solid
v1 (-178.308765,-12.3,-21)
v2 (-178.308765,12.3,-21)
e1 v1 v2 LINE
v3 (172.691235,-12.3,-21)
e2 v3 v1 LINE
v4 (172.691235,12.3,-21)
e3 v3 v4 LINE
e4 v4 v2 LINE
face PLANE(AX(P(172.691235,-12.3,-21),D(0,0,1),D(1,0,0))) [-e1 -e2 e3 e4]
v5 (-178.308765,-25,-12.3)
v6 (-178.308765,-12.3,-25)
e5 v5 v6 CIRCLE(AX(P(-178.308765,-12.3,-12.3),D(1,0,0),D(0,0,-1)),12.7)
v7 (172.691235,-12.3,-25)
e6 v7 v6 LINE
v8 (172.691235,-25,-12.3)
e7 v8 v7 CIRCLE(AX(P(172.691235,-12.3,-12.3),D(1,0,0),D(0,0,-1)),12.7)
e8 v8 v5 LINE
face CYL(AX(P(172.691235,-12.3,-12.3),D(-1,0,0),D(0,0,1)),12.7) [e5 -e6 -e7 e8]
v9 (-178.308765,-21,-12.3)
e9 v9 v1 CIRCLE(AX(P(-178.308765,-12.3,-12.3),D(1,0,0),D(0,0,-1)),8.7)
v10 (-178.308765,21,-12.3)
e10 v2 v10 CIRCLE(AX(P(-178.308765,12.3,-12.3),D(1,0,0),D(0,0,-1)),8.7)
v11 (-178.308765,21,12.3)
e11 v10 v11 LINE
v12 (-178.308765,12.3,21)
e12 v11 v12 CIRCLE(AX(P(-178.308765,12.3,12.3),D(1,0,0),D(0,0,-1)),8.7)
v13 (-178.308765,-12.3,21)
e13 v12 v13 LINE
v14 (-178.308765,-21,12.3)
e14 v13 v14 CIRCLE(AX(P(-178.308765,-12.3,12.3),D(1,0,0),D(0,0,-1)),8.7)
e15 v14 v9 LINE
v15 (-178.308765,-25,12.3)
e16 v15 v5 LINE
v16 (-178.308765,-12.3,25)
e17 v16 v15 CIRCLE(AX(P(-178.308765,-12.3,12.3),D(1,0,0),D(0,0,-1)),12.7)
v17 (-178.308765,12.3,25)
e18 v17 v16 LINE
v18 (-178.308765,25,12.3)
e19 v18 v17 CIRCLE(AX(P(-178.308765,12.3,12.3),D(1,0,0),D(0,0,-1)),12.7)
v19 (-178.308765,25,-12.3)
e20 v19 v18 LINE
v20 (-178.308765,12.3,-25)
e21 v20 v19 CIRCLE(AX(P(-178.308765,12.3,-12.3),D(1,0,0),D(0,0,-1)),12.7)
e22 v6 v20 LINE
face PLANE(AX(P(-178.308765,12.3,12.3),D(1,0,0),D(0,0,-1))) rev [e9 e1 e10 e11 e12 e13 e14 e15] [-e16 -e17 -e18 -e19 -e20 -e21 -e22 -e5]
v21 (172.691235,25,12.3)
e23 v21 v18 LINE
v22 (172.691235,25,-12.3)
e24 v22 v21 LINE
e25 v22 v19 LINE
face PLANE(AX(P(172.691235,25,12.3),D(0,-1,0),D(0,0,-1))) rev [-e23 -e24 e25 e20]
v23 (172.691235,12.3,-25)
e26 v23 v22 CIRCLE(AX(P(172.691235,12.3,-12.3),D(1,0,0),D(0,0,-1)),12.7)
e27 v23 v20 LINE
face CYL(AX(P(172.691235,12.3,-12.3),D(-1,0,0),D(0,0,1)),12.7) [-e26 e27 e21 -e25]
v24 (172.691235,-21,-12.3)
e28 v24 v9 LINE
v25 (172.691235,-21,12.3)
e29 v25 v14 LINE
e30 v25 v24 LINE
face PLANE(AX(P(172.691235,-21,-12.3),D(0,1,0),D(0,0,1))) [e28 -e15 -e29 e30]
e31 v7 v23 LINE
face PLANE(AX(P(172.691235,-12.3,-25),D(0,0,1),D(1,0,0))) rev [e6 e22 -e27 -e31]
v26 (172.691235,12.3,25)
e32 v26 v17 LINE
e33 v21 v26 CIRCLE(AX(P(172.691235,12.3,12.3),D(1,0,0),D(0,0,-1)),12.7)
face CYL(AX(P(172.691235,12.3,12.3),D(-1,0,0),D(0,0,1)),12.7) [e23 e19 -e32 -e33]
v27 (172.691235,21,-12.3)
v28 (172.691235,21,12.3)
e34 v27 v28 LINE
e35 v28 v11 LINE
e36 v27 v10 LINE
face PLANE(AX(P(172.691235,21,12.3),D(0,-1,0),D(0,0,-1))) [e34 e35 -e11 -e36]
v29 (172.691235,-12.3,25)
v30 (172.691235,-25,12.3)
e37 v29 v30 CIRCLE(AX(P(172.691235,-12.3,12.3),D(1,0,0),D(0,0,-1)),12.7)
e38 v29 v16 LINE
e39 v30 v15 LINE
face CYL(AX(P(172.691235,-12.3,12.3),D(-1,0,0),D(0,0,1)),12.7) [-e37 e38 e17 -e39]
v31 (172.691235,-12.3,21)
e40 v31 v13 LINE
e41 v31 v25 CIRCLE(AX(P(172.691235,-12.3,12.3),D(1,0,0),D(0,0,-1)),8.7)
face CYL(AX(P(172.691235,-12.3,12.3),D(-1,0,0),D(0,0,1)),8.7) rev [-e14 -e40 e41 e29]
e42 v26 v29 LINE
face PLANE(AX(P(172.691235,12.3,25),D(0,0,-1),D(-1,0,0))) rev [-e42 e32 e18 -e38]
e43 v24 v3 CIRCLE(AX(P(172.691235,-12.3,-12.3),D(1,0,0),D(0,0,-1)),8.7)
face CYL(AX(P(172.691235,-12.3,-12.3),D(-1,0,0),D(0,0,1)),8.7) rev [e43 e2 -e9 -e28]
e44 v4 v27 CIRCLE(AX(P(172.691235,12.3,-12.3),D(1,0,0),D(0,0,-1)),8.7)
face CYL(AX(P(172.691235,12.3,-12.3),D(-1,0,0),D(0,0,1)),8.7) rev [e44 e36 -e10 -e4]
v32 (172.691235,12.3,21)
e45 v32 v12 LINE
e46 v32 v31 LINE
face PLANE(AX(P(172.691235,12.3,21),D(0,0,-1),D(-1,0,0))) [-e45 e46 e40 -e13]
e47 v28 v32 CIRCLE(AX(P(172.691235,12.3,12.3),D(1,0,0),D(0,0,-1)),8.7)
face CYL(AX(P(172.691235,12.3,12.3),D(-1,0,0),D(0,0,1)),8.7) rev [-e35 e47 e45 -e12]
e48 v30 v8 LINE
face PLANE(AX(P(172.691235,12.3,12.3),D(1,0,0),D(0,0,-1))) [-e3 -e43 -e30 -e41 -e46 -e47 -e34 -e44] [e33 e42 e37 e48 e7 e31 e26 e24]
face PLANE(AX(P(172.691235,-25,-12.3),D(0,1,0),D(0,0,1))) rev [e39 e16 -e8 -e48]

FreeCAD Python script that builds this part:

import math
import FreeCAD as App
import Part
import Sketcher

doc = App.newDocument("Part")
body = doc.addObject("PartDesign::Body", "Body")

# Sketch on YZ plane
sketch1 = body.newObject("Sketcher::SketchObject", "Sketch")
sketch1.AttachmentSupport = (doc.getObject("YZ_Plane"), [""])
sketch1.MapMode = "FlatFace"
sketch1.AttachmentOffset = App.Placement(App.Vector(0, 0, -178.308765), App.Rotation())
sketch1.addGeometry([
    Part.LineSegment(App.Vector(-12, -25, 0), App.Vector(12, -25, 0)),  # 0
    Part.ArcOfCircle(Part.Circle(App.Vector(12, -12, 0), App.Vector(0, 0, 1), 13), math.radians(-90), math.radians(0)),  # 1
    Part.LineSegment(App.Vector(25, -12, 0), App.Vector(25, 12, 0)),  # 2
    Part.ArcOfCircle(Part.Circle(App.Vector(12, 12, 0), App.Vector(0, 0, 1), 13), math.radians(0), math.radians(90)),  # 3
    Part.LineSegment(App.Vector(12, 25, 0), App.Vector(-12, 25, 0)),  # 4
    Part.ArcOfCircle(Part.Circle(App.Vector(-12, 12, 0), App.Vector(0, 0, 1), 13), math.radians(90), math.radians(180)),  # 5
    Part.LineSegment(App.Vector(-25, 12, 0), App.Vector(-25, -12, 0)),  # 6
    Part.ArcOfCircle(Part.Circle(App.Vector(-12, -12, 0), App.Vector(0, 0, 1), 13), math.radians(180), math.radians(270)),  # 7
    Part.LineSegment(App.Vector(12, -21, 0), App.Vector(-12, -21, 0)),  # 8
    Part.ArcOfCircle(Part.Circle(App.Vector(-12, -12, 0), App.Vector(0, 0, 1), 9), math.radians(-180), math.radians(-90)),  # 9
    Part.LineSegment(App.Vector(-21, -12, 0), App.Vector(-21, 12, 0)),  # 10
    Part.ArcOfCircle(Part.Circle(App.Vector(-12, 12, 0), App.Vector(0, 0, 1), 9), math.radians(90), math.radians(180)),  # 11
    Part.LineSegment(App.Vector(-12, 21, 0), App.Vector(12, 21, 0)),  # 12
    Part.ArcOfCircle(Part.Circle(App.Vector(12, 12, 0), App.Vector(0, 0, 1), 9), math.radians(0), math.radians(90)),  # 13
    Part.LineSegment(App.Vector(21, 12, 0), App.Vector(21, -12, 0)),  # 14
    Part.ArcOfCircle(Part.Circle(App.Vector(12, -12, 0), App.Vector(0, 0, 1), 9), math.radians(-90), math.radians(0)),  # 15
], False)
sketch1.addConstraint([
    Sketcher.Constraint("Tangent", 0, 2, 1, 1),
    Sketcher.Constraint("Tangent", 1, 2, 2, 1),
    Sketcher.Constraint("Tangent", 2, 2, 3, 1),
    Sketcher.Constraint("Tangent", 3, 2, 4, 1),
    Sketcher.Constraint("Tangent", 4, 2, 5, 1),
    Sketcher.Constraint("Tangent", 5, 2, 6, 1),
    Sketcher.Constraint("Tangent", 6, 2, 7, 1),
    Sketcher.Constraint("Tangent", 7, 2, 0, 1),
    Sketcher.Constraint("Tangent", 8, 2, 9, 2),
    Sketcher.Constraint("Tangent", 9, 1, 10, 1),
    Sketcher.Constraint("Tangent", 10, 2, 11, 2),
    Sketcher.Constraint("Tangent", 11, 1, 12, 1),
    Sketcher.Constraint("Tangent", 12, 2, 13, 2),
    Sketcher.Constraint("Tangent", 13, 1, 14, 1),
    Sketcher.Constraint("Tangent", 14, 2, 15, 2),
    Sketcher.Constraint("Tangent", 15, 1, 8, 1),
    Sketcher.Constraint("Horizontal", 0),
    Sketcher.Constraint("Vertical", 2),
    Sketcher.Constraint("Horizontal", 4),
    Sketcher.Constraint("Vertical", 6),
    Sketcher.Constraint("Horizontal", 8),
    Sketcher.Constraint("Vertical", 10),
    Sketcher.Constraint("Horizontal", 12),
    Sketcher.Constraint("Vertical", 14),
    Sketcher.Constraint("Coincident", 9, 3, 7, 3),
    Sketcher.Constraint("Coincident", 11, 3, 5, 3),
    Sketcher.Constraint("Coincident", 13, 3, 3, 3),
    Sketcher.Constraint("Equal", 1, 3),
    Sketcher.Constraint("Equal", 3, 5),
    Sketcher.Constraint("Equal", 5, 7),
    Sketcher.Constraint("Equal", 13, 15),
    Sketcher.Constraint("Symmetric", 1, 3, 5, 3, -1, 1),
    Sketcher.Constraint("Equal", 12, 2),
    Sketcher.Constraint("Radius", 1, 12.7),
    Sketcher.Constraint("Radius", 9, 8.7),
    Sketcher.Constraint("DistanceX", 0, 1, 0, 2, 24.6),
])
pad1 = body.newObject("PartDesign::Pad", "Pad")
pad1.Profile = sketch1
pad1.Length = 351

doc.recompute()
